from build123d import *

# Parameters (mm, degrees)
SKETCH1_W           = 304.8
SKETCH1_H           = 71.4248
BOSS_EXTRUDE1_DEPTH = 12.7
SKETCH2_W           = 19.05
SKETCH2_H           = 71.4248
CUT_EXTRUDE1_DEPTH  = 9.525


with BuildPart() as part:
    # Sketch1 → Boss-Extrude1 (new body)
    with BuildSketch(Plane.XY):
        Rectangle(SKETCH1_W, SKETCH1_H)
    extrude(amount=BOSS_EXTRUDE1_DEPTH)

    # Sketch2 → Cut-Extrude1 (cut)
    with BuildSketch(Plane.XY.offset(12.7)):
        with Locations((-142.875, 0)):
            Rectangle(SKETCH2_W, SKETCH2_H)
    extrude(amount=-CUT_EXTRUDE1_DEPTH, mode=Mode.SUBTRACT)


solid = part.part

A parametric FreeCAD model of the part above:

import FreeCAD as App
import Part
import Sketcher

V = App.Vector
Q = App.Units.Quantity


def add_polygon(sketch, points):
    """Adds a closed chain of lines whose ends are joined by coincident constraints."""
    first, n = sketch.GeometryCount, len(points)
    for a, b in zip(points, points[1:] + points[:1]):
        sketch.addGeometry(Part.LineSegment(App.Vector(*a, 0), App.Vector(*b, 0)), False)
    for i in range(n):
        sketch.addConstraint(Sketcher.Constraint("Coincident", first + i, 2, first + (i + 1) % n, 1))

doc = App.newDocument("Part")
params = doc.addObject("Spreadsheet::Sheet", "Params")
for row, (alias, value) in enumerate([
    ("sketch1_width", "12 in"),
    ("sketch1_height", "2.812 in"),
    ("pad1_length", "0.5 in"),
    ("sketch2_width", "0.75 in"),
    ("sketch2_height", "2.812 in"),
    ("pocket1_length", "0.375 in"),
], start=1):
    params.set(f"A{row}", alias)
    params.set(f"B{row}", "=" + value)
    params.setAlias(f"B{row}", alias)

body = doc.addObject("PartDesign::Body", "Body")

sketch1 = body.newObject("Sketcher::SketchObject", "Sketch")
sketch1.AttachmentSupport = (doc.getObject("XY_Plane"), [""])
sketch1.MapMode = "FlatFace"
add_polygon(sketch1, [(-152, 36), (-152, -36), (152, -36), (152, 36)])
sketch1.addConstraint([
    Sketcher.Constraint("Vertical", 0),
    Sketcher.Constraint("Horizontal", 1),
    Sketcher.Constraint("Vertical", 2),
    Sketcher.Constraint("Horizontal", 3),
    Sketcher.Constraint("Symmetric", 0, 2, 2, 2, -1, 1),
    Sketcher.Constraint("DistanceX", 1, 1, 1, 2, Q("12 in")),
    Sketcher.Constraint("DistanceY", 0, 2, 0, 1, Q("2.812 in")),
])
sketch1.setExpression("Constraints[9]", "Params.sketch1_width")
sketch1.setExpression("Constraints[10]", "Params.sketch1_height")
pad1 = body.newObject("PartDesign::Pad", "Pad")
pad1.Profile = sketch1
pad1.setExpression("Length", "Params.pad1_length")

sketch2 = body.newObject("Sketcher::SketchObject", "Sketch001")
sketch2.AttachmentSupport = (doc.getObject("XY_Plane"), [""])
sketch2.MapMode = "FlatFace"
sketch2.AttachmentOffset = App.Placement(V(0, 0, 0.5 * 25.4), App.Rotation())
add_polygon(sketch2, [(-152, 36), (-152, -36), (-133, -36), (-133, 36)])
sketch2.addConstraint([
    Sketcher.Constraint("Vertical", 0),
    Sketcher.Constraint("Horizontal", 1),
    Sketcher.Constraint("Vertical", 2),
    Sketcher.Constraint("Horizontal", 3),
    Sketcher.Constraint("DistanceX", 0, 2, -1, 1, Q("6 in")),
    Sketcher.Constraint("DistanceX", 1, 1, 1, 2, Q("0.75 in")),
    Sketcher.Constraint("DistanceY", 0, 2, 0, 1, Q("2.812 in")),
    Sketcher.Constraint("DistanceY", 0, 2, -1, 1, Q("1.406 in")),
])
sketch2.setExpression("Constraints[9]", "Params.sketch2_width")
sketch2.setExpression("Constraints[10]", "Params.sketch2_height")
pocket1 = body.newObject("PartDesign::Pocket", "Pocket")
pocket1.Profile = sketch2
pocket1.setExpression("Length", "Params.pocket1_length")

doc.recompute()
